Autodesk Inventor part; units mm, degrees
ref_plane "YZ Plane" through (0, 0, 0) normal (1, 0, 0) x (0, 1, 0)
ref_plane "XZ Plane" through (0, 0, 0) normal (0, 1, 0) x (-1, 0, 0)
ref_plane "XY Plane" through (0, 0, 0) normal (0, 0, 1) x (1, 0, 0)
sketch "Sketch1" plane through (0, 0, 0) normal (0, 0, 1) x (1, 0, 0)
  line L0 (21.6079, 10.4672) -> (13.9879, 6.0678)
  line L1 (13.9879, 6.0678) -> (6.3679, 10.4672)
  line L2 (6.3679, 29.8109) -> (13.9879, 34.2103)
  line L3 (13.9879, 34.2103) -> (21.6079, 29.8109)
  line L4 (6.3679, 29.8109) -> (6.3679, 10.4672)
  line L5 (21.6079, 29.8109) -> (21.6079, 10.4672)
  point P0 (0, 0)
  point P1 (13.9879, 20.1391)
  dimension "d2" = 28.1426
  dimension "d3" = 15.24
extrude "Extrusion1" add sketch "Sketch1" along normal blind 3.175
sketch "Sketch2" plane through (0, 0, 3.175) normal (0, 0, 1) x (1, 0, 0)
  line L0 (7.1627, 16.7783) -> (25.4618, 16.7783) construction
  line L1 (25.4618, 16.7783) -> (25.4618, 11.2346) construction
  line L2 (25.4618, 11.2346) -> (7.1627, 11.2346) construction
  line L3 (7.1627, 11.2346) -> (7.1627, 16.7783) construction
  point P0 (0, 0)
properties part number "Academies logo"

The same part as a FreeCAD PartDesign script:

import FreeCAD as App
import Part
import Sketcher
from FreeCAD import Vector
Q = App.Units.Quantity


def add_polygon(sketch, points):
    """Adds a closed chain of lines whose ends are joined by coincident constraints."""
    first, n = sketch.GeometryCount, len(points)
    for a, b in zip(points, points[1:] + points[:1]):
        sketch.addGeometry(Part.LineSegment(App.Vector(*a, 0), App.Vector(*b, 0)), False)
    for i in range(n):
        sketch.addConstraint(Sketcher.Constraint("Coincident", first + i, 2, first + (i + 1) % n, 1))

doc = App.newDocument("Part")
body = doc.addObject("PartDesign::Body", "Body")

# Sketch on XY plane
sketch1 = body.newObject("Sketcher::SketchObject", "Sketch")
sketch1.AttachmentSupport = (doc.getObject("XY_Plane"), [""])
sketch1.MapMode = "FlatFace"
add_polygon(sketch1, [(14, 6), (22, 10), (22, 30), (14, 34), (6, 30), (6, 10)])  # lines 0-5
sketch1.addConstraint(Sketcher.Constraint("Vertical", 1))
sketch1.addConstraint(Sketcher.Constraint("Vertical", 4))
sketch1.addConstraint(Sketcher.Constraint("Parallel", 0, 3))
sketch1.addConstraint(Sketcher.Constraint("Parallel", 2, 5))
sketch1.addConstraint(Sketcher.Constraint("Horizontal", 1, 2, 3, 2))
sketch1.addConstraint(Sketcher.Constraint("Horizontal", 0, 2, 4, 2))
sketch1.addConstraint(Sketcher.Constraint("Vertical", 2, 2, 5, 2))
sketch1.addConstraint(Sketcher.Constraint("DistanceX", 3, 2, 1, 2, Q("0.6 in")))
sketch1.addConstraint(Sketcher.Constraint("Angle", 0, Q("30 deg")))
sketch1.addConstraint(Sketcher.Constraint("DistanceY", 5, 2, 2, 2, Q("28.1425 mm")))
sketch1.addConstraint(Sketcher.Constraint("DistanceX", -1, 1, 0, 2, Q("0.8507 in")))
sketch1.addConstraint(Sketcher.Constraint("DistanceY", -1, 1, 0, 2, Q("0.4121 in")))
pad1 = body.newObject("PartDesign::Pad", "Pad")
pad1.Profile = sketch1
pad1.Length = Q("0.125 in")

doc.recompute()
